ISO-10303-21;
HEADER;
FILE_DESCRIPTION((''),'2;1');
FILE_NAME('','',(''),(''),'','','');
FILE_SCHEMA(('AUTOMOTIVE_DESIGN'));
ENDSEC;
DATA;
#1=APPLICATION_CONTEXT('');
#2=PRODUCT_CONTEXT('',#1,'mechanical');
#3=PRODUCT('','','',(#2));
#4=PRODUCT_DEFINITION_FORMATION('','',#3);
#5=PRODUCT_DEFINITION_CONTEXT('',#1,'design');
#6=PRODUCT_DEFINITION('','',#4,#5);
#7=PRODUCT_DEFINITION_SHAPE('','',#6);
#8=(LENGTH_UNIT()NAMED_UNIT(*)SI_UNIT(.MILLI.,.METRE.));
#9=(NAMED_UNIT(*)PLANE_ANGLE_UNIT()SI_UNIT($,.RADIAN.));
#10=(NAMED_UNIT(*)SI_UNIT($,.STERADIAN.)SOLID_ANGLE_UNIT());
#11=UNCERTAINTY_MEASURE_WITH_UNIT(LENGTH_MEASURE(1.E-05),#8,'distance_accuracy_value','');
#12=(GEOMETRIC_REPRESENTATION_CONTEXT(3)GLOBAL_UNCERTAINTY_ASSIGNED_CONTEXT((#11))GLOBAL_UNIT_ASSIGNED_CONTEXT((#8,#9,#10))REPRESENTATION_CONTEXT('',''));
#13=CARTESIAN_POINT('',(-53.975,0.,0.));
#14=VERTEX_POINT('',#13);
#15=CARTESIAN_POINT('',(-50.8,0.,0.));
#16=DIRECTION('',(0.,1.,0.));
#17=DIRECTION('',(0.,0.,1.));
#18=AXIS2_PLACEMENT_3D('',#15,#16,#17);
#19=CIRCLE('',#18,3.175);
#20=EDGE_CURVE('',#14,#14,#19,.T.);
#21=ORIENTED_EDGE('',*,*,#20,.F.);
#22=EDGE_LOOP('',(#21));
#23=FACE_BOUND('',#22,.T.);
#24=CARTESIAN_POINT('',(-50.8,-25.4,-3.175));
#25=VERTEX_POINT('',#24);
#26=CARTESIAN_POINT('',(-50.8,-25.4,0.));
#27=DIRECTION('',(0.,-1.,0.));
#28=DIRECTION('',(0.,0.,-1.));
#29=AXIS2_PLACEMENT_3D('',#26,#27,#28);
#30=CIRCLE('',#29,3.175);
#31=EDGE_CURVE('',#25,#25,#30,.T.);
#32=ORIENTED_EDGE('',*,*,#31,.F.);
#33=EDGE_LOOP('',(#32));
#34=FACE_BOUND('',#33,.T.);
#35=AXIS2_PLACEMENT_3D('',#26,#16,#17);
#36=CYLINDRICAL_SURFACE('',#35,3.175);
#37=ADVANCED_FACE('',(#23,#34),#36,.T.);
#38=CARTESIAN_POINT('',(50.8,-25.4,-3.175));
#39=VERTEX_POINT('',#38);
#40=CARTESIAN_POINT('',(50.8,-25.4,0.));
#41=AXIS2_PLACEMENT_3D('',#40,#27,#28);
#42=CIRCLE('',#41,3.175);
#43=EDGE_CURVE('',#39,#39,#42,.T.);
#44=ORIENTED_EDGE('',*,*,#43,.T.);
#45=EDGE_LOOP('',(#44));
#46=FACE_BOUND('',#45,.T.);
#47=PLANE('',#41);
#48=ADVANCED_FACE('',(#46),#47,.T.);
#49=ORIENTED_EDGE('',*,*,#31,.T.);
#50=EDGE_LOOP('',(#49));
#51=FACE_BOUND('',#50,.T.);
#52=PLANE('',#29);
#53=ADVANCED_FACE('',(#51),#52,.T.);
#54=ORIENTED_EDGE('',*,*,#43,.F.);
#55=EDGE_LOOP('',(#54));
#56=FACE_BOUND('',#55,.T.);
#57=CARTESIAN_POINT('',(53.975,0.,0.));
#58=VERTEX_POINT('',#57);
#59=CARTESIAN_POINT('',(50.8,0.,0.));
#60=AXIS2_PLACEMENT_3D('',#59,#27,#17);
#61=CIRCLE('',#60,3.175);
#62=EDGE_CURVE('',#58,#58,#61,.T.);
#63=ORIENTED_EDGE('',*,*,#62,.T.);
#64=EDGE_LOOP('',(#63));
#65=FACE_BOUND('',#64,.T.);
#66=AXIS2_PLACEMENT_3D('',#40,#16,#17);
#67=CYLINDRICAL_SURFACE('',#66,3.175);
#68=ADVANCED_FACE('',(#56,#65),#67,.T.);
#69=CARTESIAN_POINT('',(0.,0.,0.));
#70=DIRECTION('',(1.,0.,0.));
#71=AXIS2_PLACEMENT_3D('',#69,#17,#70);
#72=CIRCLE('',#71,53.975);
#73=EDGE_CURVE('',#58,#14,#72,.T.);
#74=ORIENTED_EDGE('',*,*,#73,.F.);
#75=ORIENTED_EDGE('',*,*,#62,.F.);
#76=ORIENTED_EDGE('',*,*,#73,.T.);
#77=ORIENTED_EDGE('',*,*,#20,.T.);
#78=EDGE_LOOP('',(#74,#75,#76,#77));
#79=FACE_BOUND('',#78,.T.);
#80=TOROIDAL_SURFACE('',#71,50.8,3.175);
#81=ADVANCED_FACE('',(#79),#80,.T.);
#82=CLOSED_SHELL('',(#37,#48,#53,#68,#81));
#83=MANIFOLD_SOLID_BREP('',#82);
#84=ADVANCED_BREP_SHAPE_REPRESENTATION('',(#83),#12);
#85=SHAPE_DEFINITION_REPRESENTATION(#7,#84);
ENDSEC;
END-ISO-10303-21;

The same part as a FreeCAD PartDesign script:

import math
import FreeCAD as App
import Part
import Sketcher
from FreeCAD import Vector
Q = App.Units.Quantity

doc = App.newDocument("Part")
body = doc.addObject("PartDesign::Body", "Body")

# Sketch on XZ plane
sketch1 = body.newObject("Sketcher::SketchObject", "Sketch")
sketch1.AttachmentSupport = (doc.getObject("XZ_Plane"), [""])
sketch1.MapMode = "FlatFace"
sketch1.addGeometry(Part.Circle(Vector(-50.8, 0, 0), Vector(0, 0, 1), 3.2), False)
sketch1.addConstraint([
    Sketcher.Constraint("PointOnObject", 0, 3, -1),
    Sketcher.Constraint("Diameter", 0, Q("0.25 in")),
    Sketcher.Constraint("DistanceX", 0, 3, -1, 1, Q("2 in")),
])

# Sketch on XY plane
sketch2 = body.newObject("Sketcher::SketchObject", "Sketch001")
sketch2.AttachmentSupport = (doc.getObject("XY_Plane"), [""])
sketch2.MapMode = "FlatFace"
sketch2.addGeometry(Part.ArcOfCircle(Part.Circle(Vector(0, 0, 0), Vector(0, 0, 1), 51), math.radians(0), math.radians(180)), False)
sketch2.addConstraint([
    Sketcher.Constraint("Coincident", 0, 3, -1, 1),
    Sketcher.Constraint("PointOnObject", 0, 1, -1),
    Sketcher.Constraint("PointOnObject", 0, 2, -1),
    Sketcher.Constraint("Radius", 0, Q("2 in")),
])
doc.recompute()

additivepipe = body.newObject("PartDesign::AdditivePipe", "AdditivePipe")
additivepipe.Profile = sketch1
additivepipe.Spine = (sketch2, ["Edge1"])

# Sketch on XZ plane
sketch3 = body.newObject("Sketcher::SketchObject", "Sketch002")
sketch3.AttachmentSupport = (doc.getObject("XZ_Plane"), [""])
sketch3.MapMode = "FlatFace"
sketch3.addGeometry([
    Part.Circle(Vector(-50.8, 0, 0), Vector(0, 0, 1), 3.2),
    Part.Circle(Vector(50.8, 0, 0), Vector(0, 0, 1), 3.2),
], False)
sketch3.addConstraint([
    Sketcher.Constraint("Equal", 0, 1),
    Sketcher.Constraint("Symmetric", 0, 3, 1, 3, -1, 1),
    Sketcher.Constraint("PointOnObject", 0, 3, -1),
    Sketcher.Constraint("Diameter", 0, Q("0.25 in")),
    Sketcher.Constraint("DistanceX", 0, 3, -1, 1, Q("2 in")),
])
pad1 = body.newObject("PartDesign::Pad", "Pad")
pad1.Profile = sketch3
pad1.Length = Q("1 in")

doc.recompute()
